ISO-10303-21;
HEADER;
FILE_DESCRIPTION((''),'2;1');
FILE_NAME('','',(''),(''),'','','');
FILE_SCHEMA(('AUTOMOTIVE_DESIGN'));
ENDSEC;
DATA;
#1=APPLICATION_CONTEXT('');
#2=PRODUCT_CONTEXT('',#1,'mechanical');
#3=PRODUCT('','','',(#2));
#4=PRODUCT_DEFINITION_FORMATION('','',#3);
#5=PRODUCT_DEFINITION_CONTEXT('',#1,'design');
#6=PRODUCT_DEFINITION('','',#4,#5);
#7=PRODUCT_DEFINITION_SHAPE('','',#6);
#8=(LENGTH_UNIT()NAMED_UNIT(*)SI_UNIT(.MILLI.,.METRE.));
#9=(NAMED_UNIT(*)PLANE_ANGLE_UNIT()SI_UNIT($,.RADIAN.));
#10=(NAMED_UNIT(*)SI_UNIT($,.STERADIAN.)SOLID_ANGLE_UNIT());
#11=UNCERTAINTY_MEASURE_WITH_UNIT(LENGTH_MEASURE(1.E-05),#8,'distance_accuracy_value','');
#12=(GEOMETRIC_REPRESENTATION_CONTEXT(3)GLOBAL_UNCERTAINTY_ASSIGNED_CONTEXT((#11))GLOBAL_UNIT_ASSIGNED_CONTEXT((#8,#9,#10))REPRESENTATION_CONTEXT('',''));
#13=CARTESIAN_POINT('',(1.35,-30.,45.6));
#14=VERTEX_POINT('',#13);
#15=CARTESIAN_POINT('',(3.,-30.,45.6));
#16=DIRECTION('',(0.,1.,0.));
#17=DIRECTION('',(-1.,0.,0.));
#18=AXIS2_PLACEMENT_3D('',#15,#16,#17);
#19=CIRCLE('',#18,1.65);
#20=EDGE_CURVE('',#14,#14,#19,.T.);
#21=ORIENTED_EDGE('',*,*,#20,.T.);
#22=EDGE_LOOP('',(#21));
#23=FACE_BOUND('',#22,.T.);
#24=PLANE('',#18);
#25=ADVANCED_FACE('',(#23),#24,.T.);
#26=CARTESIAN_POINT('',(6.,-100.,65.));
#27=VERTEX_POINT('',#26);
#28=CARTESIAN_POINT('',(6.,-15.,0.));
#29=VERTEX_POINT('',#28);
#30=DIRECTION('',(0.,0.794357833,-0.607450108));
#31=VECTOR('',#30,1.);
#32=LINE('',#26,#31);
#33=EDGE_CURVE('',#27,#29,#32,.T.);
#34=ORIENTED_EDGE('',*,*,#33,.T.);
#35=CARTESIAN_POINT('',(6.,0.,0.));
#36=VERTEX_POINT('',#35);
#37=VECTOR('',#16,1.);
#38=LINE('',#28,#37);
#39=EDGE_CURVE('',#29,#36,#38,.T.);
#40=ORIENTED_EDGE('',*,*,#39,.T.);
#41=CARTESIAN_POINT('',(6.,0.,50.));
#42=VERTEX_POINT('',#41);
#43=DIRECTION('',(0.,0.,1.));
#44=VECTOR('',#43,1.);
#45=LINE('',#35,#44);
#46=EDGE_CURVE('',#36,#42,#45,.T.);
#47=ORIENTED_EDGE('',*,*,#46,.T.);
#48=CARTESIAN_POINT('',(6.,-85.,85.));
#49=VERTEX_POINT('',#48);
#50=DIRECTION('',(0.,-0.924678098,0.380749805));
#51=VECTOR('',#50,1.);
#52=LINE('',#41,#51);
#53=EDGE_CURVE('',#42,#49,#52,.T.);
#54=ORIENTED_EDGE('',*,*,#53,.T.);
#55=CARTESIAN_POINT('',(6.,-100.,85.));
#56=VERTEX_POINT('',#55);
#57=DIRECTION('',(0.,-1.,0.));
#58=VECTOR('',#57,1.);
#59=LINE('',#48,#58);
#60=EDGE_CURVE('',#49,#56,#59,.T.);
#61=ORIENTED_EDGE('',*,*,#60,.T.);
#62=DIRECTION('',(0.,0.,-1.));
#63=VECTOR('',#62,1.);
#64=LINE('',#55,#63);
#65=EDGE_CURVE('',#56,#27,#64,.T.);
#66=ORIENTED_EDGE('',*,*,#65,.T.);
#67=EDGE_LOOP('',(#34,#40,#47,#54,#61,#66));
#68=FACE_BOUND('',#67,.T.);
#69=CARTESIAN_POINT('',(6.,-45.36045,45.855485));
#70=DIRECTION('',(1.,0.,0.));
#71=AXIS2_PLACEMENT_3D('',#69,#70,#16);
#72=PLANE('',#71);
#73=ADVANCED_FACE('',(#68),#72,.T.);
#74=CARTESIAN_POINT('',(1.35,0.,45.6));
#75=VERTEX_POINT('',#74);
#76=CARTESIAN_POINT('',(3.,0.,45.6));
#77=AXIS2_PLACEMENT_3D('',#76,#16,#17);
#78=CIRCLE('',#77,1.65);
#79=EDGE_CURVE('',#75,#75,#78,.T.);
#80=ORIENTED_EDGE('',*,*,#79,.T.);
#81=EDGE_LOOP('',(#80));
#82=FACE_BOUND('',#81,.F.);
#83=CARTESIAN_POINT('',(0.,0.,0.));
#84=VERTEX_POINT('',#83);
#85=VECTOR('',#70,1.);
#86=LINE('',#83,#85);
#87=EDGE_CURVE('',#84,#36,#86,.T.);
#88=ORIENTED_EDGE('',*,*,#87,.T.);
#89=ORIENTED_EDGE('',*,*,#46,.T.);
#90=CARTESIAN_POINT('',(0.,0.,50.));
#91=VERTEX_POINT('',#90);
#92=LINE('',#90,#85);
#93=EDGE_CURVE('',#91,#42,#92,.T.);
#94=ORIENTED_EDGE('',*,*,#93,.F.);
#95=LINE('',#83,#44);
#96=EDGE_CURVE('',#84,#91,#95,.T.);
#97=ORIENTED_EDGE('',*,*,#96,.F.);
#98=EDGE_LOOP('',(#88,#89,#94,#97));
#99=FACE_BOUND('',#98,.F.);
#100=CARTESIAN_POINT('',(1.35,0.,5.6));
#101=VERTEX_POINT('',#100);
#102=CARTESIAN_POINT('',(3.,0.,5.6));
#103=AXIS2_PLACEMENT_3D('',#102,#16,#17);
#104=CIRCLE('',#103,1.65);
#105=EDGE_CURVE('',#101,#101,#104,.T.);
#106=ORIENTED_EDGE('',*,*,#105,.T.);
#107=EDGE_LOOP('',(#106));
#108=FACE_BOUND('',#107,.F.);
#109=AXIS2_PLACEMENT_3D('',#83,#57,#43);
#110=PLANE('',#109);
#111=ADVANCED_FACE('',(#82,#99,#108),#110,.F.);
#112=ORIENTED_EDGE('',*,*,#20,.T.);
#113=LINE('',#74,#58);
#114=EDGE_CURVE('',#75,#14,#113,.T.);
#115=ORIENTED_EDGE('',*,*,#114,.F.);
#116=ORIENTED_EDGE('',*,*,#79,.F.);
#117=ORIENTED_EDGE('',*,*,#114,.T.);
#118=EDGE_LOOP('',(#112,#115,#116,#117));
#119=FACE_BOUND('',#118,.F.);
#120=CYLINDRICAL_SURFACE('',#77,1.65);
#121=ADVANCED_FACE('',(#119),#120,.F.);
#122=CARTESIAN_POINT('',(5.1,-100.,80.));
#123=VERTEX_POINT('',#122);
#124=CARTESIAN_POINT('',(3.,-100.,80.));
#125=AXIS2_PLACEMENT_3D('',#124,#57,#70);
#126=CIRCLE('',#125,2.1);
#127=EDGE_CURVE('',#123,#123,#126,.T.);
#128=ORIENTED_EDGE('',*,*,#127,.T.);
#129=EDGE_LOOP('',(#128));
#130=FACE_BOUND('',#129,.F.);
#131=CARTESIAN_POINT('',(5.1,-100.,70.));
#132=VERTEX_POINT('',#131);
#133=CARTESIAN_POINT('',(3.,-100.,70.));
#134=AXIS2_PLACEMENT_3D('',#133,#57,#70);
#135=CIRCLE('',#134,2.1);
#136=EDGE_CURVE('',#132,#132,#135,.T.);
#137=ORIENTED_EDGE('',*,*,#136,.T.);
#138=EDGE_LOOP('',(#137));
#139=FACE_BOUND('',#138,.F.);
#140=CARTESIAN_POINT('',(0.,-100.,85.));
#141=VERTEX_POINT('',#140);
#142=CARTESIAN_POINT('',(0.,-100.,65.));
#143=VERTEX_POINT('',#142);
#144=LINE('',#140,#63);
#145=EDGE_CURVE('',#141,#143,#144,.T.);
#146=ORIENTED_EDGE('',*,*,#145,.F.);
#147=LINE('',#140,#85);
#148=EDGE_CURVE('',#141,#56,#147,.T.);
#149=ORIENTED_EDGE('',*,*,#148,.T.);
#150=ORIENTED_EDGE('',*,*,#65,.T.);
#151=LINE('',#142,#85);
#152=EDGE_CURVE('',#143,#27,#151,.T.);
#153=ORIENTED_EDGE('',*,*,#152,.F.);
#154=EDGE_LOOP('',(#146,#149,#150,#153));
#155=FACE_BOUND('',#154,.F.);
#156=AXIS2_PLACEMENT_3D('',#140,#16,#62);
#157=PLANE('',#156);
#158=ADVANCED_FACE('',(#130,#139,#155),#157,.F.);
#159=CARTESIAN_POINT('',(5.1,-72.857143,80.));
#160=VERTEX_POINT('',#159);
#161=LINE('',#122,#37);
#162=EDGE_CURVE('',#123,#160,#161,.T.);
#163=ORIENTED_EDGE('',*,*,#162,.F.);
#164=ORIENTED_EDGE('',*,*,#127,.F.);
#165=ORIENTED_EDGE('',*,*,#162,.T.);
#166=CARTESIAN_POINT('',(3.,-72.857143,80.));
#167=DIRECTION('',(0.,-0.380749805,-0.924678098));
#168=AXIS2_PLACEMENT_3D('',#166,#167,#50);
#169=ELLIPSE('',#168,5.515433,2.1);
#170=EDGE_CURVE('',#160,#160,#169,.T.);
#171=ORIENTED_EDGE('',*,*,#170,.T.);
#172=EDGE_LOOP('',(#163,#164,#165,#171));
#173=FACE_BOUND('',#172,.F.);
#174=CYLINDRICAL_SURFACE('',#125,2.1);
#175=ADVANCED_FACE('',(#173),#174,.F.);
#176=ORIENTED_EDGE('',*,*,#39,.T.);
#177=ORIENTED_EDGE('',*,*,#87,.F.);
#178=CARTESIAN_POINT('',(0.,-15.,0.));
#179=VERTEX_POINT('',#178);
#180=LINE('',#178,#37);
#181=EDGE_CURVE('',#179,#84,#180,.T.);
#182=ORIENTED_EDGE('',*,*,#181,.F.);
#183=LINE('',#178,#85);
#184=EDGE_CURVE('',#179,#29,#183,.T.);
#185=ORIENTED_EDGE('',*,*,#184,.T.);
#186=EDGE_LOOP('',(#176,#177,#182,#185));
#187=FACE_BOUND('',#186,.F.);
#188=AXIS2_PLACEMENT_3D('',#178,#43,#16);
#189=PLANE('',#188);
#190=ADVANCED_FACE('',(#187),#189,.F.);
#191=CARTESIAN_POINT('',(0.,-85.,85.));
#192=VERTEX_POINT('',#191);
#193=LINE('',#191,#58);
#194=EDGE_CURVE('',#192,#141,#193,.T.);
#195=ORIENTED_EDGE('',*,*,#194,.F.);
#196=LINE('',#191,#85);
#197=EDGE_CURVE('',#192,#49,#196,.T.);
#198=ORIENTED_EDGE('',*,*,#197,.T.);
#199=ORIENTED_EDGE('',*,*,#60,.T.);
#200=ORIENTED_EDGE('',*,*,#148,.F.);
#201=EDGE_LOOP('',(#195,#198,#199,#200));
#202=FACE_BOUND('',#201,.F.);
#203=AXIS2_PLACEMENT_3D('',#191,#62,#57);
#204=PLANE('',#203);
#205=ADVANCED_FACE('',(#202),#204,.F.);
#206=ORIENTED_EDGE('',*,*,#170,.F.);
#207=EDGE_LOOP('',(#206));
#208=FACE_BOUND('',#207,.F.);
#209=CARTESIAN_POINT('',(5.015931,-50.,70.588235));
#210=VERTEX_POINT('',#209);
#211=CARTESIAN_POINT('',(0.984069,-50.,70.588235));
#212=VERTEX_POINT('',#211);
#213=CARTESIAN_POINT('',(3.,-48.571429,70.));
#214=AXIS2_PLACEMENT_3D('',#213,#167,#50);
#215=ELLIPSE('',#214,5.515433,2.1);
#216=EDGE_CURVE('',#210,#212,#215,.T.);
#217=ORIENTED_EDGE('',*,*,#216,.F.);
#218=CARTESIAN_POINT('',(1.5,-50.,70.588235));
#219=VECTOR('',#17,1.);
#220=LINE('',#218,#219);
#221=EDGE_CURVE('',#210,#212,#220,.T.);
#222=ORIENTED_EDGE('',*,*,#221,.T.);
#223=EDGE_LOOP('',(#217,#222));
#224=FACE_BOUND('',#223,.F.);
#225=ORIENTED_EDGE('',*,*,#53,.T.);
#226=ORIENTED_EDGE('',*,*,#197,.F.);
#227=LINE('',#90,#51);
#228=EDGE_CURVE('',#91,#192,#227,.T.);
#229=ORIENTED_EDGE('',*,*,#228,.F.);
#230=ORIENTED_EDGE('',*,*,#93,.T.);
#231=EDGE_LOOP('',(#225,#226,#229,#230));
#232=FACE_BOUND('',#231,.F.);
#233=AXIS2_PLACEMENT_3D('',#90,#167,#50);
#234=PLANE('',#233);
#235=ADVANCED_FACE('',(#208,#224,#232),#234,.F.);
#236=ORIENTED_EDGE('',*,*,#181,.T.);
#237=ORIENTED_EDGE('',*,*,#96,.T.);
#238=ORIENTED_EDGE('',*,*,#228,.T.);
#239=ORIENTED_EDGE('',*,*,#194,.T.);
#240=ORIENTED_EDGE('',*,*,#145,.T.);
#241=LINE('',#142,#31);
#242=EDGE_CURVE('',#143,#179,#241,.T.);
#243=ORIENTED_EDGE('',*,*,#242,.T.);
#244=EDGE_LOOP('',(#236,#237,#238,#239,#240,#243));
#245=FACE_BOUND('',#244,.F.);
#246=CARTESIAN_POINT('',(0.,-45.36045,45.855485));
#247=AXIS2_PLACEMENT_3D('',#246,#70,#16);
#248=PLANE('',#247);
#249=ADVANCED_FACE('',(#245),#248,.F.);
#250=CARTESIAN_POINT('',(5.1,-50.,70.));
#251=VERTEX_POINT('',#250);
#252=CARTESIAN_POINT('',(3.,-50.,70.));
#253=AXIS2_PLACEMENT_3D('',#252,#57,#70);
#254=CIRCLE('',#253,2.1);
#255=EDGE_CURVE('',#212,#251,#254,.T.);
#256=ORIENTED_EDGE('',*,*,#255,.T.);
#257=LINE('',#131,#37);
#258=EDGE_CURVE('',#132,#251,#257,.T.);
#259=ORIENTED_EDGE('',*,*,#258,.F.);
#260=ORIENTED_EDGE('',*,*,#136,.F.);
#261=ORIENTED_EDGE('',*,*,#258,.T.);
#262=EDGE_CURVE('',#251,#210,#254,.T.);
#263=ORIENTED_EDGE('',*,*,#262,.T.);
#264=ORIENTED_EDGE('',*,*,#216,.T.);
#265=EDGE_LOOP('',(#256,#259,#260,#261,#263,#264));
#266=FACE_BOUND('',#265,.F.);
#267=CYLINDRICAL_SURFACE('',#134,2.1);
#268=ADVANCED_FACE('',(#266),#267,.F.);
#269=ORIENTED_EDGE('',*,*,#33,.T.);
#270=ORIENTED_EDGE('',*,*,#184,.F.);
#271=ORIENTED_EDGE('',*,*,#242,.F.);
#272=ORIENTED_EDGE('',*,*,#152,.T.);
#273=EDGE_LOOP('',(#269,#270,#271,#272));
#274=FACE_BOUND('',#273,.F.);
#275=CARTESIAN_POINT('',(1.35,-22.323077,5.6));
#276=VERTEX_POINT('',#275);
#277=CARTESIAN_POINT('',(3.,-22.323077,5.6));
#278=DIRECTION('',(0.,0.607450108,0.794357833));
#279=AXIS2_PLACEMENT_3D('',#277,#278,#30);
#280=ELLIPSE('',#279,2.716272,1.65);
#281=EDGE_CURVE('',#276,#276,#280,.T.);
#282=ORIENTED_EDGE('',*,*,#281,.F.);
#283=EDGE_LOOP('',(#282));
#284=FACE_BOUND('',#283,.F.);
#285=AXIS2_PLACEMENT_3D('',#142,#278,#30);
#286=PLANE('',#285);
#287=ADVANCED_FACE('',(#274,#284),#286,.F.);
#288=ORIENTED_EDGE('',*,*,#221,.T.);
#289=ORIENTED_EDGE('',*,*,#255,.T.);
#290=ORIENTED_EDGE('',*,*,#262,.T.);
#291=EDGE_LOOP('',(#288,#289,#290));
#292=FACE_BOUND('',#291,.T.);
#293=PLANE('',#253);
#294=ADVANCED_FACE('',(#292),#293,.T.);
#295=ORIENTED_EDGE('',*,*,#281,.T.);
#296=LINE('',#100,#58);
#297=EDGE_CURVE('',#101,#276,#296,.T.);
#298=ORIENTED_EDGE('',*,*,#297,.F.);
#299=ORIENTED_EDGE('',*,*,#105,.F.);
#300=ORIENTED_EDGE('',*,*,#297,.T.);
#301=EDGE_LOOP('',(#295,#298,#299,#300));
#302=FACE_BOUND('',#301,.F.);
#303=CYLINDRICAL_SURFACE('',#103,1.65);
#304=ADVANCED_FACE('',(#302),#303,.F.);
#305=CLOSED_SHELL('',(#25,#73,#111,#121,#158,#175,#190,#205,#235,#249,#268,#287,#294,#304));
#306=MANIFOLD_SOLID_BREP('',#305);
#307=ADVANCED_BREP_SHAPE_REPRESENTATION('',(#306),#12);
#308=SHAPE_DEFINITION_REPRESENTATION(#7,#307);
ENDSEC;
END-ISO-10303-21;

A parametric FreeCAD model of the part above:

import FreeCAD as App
import Part
import Sketcher

V = App.Vector


def add_polygon(sketch, points):
    """Adds a closed chain of lines whose ends are joined by coincident constraints."""
    first, n = sketch.GeometryCount, len(points)
    for a, b in zip(points, points[1:] + points[:1]):
        sketch.addGeometry(Part.LineSegment(App.Vector(*a, 0), App.Vector(*b, 0)), False)
    for i in range(n):
        sketch.addConstraint(Sketcher.Constraint("Coincident", first + i, 2, first + (i + 1) % n, 1))

doc = App.newDocument("Part")
body = doc.addObject("PartDesign::Body", "Body")

sketch1 = body.newObject("Sketcher::SketchObject", "Sketch")
sketch1.AttachmentSupport = (doc.getObject("YZ_Plane"), [""])
sketch1.MapMode = "FlatFace"
add_polygon(sketch1, [(-15, 0), (0, 0), (0, 50), (-85, 85), (-100, 85), (-100, 65)])
sketch1.addConstraint([
    Sketcher.Constraint("Horizontal", 0),
    Sketcher.Constraint("Vertical", 1),
    Sketcher.Constraint("Horizontal", 3),
    Sketcher.Constraint("Vertical", 4),
    Sketcher.Constraint("Coincident", 0, 2, -1, 1),
    Sketcher.Constraint("Equal", 0, 3),
    Sketcher.Constraint("DistanceX", 0, 1, 0, 2, 15.0),
    Sketcher.Constraint("DistanceY", 1, 1, 1, 2, 50.0),
    Sketcher.Constraint("DistanceY", 4, 2, 4, 1, 20.0),
    Sketcher.Constraint("DistanceX", 2, 2, -1, 1, 85.0),
    Sketcher.Constraint("DistanceY", -1, 1, 2, 2, 85.0),
])
pad1 = body.newObject("PartDesign::Pad", "Pad")
pad1.Profile = sketch1
pad1.Length = 6

sketch2 = body.newObject("Sketcher::SketchObject", "Sketch001")
sketch2.AttachmentSupport = (doc.getObject("XZ_Plane"), [""])
sketch2.MapMode = "FlatFace"
sketch2.AttachmentOffset = App.Placement(V(0, 0, 100), App.Rotation())
sketch2.addGeometry([
    Part.Circle(V(3, 70, 0), V(0, 0, 1), 2.1),
    Part.Circle(V(3, 80, 0), V(0, 0, 1), 2.1),
], False)
sketch2.addConstraint([
    Sketcher.Constraint("Equal", 0, 1),
    Sketcher.Constraint("Vertical", 0, 3, 1, 3),
    Sketcher.Constraint("Diameter", 0, 4.2),
    Sketcher.Constraint("DistanceX", -1, 1, 0, 3, 3.0),
    Sketcher.Constraint("DistanceY", -1, 1, 0, 3, 70.0),
    Sketcher.Constraint("DistanceY", -1, 1, 1, 3, 80.0),
])
pocket1 = body.newObject("PartDesign::Pocket", "Pocket")
pocket1.Profile = sketch2
pocket1.Length = 50

sketch3 = body.newObject("Sketcher::SketchObject", "Sketch002")
sketch3.AttachmentSupport = (doc.getObject("XZ_Plane"), [""])
sketch3.MapMode = "FlatFace"
sketch3.addGeometry([
    Part.Circle(V(3, 45.6, 0), V(0, 0, 1), 1.6),
    Part.Circle(V(3, 5.6, 0), V(0, 0, 1), 1.6),
], False)
sketch3.addConstraint([
    Sketcher.Constraint("Equal", 0, 1),
    Sketcher.Constraint("Vertical", 0, 3, 1, 3),
    Sketcher.Constraint("Diameter", 0, 3.3),
    Sketcher.Constraint("DistanceX", -1, 1, 0, 3, 3.0),
    Sketcher.Constraint("DistanceY", 1, 3, 0, 3, 40.0),
    Sketcher.Constraint("DistanceY", -1, 1, 0, 3, 45.6),
])
pocket2 = body.newObject("PartDesign::Pocket", "Pocket001")
pocket2.Profile = sketch3
pocket2.Length = 30
pocket2.Reversed = True

doc.recompute()
